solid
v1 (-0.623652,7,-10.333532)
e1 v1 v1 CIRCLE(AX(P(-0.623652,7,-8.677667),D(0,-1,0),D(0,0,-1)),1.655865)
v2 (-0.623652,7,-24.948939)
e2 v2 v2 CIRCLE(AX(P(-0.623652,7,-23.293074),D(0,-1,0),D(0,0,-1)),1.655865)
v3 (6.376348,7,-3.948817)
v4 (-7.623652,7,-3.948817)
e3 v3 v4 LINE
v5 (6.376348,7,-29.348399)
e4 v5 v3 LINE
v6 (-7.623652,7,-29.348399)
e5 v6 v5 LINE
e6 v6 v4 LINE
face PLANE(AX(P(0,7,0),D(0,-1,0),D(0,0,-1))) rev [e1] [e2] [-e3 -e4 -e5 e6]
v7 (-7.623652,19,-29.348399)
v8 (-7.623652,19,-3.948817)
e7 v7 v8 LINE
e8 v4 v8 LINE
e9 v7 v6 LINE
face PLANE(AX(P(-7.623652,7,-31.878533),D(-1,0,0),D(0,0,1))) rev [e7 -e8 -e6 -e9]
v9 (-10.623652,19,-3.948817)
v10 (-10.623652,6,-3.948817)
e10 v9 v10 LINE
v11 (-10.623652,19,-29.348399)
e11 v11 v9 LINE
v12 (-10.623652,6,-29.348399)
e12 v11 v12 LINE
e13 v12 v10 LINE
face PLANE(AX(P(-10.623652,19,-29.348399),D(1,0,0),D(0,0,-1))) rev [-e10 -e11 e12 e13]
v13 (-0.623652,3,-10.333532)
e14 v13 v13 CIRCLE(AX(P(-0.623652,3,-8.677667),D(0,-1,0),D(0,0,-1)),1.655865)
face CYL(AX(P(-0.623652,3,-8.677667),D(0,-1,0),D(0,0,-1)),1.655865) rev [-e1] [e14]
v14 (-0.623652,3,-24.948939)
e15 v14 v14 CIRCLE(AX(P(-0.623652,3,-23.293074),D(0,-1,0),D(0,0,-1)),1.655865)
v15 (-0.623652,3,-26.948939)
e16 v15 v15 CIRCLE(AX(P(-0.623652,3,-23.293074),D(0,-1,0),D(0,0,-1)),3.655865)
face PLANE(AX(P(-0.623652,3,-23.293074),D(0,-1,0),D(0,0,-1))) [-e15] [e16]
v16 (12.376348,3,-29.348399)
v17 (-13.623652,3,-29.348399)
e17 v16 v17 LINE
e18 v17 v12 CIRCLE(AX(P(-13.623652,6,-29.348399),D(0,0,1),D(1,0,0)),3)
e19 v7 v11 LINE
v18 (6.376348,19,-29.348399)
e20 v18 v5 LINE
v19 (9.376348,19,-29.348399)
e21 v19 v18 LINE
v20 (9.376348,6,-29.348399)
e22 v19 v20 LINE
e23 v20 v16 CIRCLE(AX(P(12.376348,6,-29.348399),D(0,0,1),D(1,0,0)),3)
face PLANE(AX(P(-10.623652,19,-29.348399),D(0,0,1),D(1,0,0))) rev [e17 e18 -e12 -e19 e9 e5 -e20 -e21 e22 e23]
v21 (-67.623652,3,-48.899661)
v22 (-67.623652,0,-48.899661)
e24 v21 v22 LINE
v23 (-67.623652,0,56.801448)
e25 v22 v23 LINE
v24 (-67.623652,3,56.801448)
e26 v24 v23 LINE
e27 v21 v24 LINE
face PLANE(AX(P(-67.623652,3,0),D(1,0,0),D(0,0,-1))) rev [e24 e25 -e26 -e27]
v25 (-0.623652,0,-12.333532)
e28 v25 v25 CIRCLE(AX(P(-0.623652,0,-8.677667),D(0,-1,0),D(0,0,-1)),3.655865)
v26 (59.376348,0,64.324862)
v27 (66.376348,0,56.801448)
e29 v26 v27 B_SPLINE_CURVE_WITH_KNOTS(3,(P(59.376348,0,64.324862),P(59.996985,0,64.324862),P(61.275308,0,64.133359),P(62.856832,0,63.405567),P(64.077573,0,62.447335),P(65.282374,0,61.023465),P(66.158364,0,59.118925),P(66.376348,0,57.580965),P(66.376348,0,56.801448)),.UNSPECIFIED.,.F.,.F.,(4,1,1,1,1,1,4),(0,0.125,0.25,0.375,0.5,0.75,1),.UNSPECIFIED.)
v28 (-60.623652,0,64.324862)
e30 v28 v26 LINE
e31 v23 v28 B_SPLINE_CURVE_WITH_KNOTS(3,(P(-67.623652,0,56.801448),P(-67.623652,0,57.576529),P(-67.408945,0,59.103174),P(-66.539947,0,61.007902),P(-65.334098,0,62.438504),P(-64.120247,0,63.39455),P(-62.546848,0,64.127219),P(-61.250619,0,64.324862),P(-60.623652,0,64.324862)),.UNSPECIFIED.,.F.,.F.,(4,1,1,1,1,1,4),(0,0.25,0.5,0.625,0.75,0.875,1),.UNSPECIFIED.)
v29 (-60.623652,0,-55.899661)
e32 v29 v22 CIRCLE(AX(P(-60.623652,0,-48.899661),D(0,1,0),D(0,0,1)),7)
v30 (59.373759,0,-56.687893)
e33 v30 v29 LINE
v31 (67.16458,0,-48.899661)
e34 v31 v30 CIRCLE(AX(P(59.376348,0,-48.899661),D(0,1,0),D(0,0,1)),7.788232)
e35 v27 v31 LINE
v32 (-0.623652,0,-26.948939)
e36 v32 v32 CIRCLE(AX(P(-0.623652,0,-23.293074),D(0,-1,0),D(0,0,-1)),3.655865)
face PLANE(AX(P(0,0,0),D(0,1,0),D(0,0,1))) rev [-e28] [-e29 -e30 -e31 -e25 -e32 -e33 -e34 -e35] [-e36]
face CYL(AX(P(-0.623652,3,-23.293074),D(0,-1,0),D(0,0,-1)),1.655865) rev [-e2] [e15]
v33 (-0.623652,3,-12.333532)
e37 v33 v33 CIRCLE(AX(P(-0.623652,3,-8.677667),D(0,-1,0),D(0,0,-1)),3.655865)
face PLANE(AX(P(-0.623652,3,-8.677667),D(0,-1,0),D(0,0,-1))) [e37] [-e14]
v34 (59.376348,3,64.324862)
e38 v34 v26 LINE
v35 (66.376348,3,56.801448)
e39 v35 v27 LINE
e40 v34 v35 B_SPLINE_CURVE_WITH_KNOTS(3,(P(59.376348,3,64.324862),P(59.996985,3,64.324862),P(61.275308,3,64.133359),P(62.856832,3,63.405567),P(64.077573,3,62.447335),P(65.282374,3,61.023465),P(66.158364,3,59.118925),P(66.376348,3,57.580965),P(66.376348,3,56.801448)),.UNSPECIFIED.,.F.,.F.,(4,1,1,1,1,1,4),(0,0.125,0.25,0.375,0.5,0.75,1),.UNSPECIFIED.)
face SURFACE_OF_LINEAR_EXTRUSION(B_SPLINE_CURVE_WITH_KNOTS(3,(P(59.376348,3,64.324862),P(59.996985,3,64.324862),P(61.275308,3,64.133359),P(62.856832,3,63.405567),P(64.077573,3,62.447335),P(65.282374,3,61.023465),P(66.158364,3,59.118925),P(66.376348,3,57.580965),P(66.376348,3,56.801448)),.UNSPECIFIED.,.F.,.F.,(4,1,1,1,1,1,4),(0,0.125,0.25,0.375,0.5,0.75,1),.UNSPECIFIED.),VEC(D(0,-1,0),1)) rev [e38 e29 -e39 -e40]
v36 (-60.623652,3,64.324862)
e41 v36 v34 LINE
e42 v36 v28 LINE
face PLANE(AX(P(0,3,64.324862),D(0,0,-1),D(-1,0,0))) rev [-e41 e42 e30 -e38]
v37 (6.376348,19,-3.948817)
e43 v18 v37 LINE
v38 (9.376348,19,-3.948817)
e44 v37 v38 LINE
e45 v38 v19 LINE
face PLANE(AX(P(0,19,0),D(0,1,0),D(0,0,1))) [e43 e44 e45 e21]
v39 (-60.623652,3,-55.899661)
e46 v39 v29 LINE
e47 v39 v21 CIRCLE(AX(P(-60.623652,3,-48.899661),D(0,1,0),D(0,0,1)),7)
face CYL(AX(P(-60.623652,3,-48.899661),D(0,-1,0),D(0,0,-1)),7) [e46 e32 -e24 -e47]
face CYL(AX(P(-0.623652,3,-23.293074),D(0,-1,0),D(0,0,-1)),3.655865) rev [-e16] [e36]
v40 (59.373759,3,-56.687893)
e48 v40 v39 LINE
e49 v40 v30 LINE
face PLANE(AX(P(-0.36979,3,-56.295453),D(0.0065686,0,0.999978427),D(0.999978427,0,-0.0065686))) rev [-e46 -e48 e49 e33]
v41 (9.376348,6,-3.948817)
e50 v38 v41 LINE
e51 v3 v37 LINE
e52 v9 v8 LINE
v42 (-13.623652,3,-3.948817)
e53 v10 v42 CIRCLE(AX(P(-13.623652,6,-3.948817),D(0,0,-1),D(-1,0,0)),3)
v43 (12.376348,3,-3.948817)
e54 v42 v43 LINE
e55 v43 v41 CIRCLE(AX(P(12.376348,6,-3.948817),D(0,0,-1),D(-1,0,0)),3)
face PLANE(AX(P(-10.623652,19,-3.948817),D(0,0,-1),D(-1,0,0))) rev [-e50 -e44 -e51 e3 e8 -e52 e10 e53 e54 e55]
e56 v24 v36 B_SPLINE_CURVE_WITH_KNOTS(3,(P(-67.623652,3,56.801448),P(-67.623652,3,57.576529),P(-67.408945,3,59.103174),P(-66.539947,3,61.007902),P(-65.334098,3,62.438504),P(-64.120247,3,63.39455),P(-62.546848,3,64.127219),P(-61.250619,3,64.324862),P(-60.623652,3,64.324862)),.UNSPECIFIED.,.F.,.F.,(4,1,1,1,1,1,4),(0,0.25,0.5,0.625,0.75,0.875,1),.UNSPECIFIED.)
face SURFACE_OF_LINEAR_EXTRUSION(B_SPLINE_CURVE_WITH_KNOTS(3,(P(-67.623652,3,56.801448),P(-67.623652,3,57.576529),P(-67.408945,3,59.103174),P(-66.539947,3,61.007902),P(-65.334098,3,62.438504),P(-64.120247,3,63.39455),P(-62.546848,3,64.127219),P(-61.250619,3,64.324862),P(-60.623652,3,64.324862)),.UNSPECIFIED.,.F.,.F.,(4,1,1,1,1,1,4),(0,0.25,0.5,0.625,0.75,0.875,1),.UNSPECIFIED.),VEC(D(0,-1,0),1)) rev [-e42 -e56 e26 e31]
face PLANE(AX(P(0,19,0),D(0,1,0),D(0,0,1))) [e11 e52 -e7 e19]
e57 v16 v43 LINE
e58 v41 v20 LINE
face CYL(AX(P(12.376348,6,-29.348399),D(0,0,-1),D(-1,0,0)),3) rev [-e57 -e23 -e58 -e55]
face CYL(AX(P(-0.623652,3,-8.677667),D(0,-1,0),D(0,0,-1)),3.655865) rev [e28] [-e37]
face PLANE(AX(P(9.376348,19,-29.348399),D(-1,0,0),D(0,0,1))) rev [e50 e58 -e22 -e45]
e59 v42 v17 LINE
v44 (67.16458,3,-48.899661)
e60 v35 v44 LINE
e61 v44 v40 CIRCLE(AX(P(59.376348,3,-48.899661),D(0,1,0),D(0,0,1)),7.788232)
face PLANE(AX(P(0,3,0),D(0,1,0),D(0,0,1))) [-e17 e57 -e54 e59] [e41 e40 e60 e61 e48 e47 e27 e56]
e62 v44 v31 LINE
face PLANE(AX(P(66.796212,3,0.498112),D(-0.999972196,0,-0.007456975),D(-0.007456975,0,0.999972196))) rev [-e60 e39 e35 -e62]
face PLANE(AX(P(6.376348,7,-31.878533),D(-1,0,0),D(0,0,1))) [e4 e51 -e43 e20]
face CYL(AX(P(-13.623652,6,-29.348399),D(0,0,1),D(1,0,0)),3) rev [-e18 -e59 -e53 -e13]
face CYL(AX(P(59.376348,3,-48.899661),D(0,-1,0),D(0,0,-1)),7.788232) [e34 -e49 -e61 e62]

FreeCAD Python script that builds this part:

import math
import FreeCAD as App
import Part
import Sketcher

V = App.Vector
Q = App.Units.Quantity


def edges_at(feature, points):
    """Names of the edges that pass closest to the given points."""
    edges = feature.Shape.Edges
    near = lambda p: min(range(len(edges)), key=lambda i: edges[i].distToShape(Part.Vertex(*p))[0])
    return sorted({f"Edge{near(p) + 1}" for p in points})


def add_polygon(sketch, points):
    """Adds a closed chain of lines whose ends are joined by coincident constraints."""
    first, n = sketch.GeometryCount, len(points)
    for a, b in zip(points, points[1:] + points[:1]):
        sketch.addGeometry(Part.LineSegment(App.Vector(*a, 0), App.Vector(*b, 0)), False)
    for i in range(n):
        sketch.addConstraint(Sketcher.Constraint("Coincident", first + i, 2, first + (i + 1) % n, 1))

doc = App.newDocument("Part")
params = doc.addObject("Spreadsheet::Sheet", "Params")
for row, (alias, value) in enumerate([
    ("sketch1_radius", "7 mm"),
    ("sketch1_length", "120 mm"),
    ("pad1_length", "3 mm"),
    ("sketch2_width", "20 mm"),
    ("pad2_length", "16 mm"),
    ("sketch3_width", "14 mm"),
    ("pocket1_length", "12 mm"),
    ("fillet_radius", "3 mm"),
    ("pocket2_length", "3 mm"),
], start=1):
    params.set(f"A{row}", alias)
    params.set(f"B{row}", "=" + value)
    params.setAlias(f"B{row}", alias)

body = doc.addObject("PartDesign::Body", "Body")

# Sketch on XZ plane
sketch1 = doc.addObject("Sketcher::SketchObject", "Sketch")
body.addObject(sketch1)
sketch1.AttachmentSupport = (doc.XZ_Plane, [""])
sketch1.MapMode = "FlatFace"
sketch1.addGeometry(Part.LineSegment(V(-67.623652, -48.899661, 0), V(-67.623652, 56.801448, 0)), False)
sketch1.addGeometry(Part.BSplineCurve([V(-67.623652, 56.801448, 0), V(-67.623652, 57.576529, 0), V(-67.408945, 59.103174, 0), V(-66.539947, 61.007902, 0), V(-65.334098, 62.438504, 0), V(-64.120247, 63.39455, 0), V(-62.546848, 64.127219, 0), V(-61.250619, 64.324862, 0), V(-60.623652, 64.324862, 0)], [4, 1, 1, 1, 1, 1, 4], [0, 0.25, 0.5, 0.625, 0.75, 0.875, 1], False, 3, [1, 1, 1, 1, 1, 1, 1, 1, 1], False), False)
sketch1.addGeometry(Part.LineSegment(V(-60.623652, 64.324862, 0), V(59.376348, 64.324862, 0)), False)
sketch1.addGeometry(Part.BSplineCurve([V(59.376348, 64.324862, 0), V(59.996985, 64.324862, 0), V(61.275308, 64.133359, 0), V(62.856832, 63.405567, 0), V(64.077573, 62.447335, 0), V(65.282374, 61.023465, 0), V(66.158364, 59.118925, 0), V(66.376348, 57.580965, 0), V(66.376348, 56.801448, 0)], [4, 1, 1, 1, 1, 1, 4], [0, 0.125, 0.25, 0.375, 0.5, 0.75, 1], False, 3, [1, 1, 1, 1, 1, 1, 1, 1, 1], False), False)
sketch1.addGeometry(Part.LineSegment(V(66.376348, 56.801448, 0), V(67.16458, -48.899661, 0)), False)
sketch1.addGeometry(Part.ArcOfCircle(Part.Circle(V(59.376348, -48.899661, 0), V(0, 0, 1), 7.788232), math.radians(-90.019045), math.radians(0)), False)
sketch1.addGeometry(Part.LineSegment(V(59.373759, -56.687893, 0), V(-60.623652, -55.899661, 0)), False)
sketch1.addGeometry(Part.ArcOfCircle(Part.Circle(V(-60.623652, -48.899661, 0), V(0, 0, 1), 7), math.radians(180), math.radians(270)), False)
sketch1.addGeometry(Part.Circle(V(-0.623652, -8.677667, 0), V(0, 0, 1), 1.655865), False)
sketch1.addGeometry(Part.Circle(V(-0.623652, -23.293074, 0), V(0, 0, 1), 1.655865), False)
sketch1.addConstraint(Sketcher.Constraint("Block", 1))
sketch1.addConstraint(Sketcher.Constraint("Block", 3))
sketch1.addConstraint(Sketcher.Constraint("Coincident", 0, 2, 1, 1))
sketch1.addConstraint(Sketcher.Constraint("Coincident", 1, 2, 2, 1))
sketch1.addConstraint(Sketcher.Constraint("Coincident", 2, 2, 3, 1))
sketch1.addConstraint(Sketcher.Constraint("Coincident", 3, 2, 4, 1))
sketch1.addConstraint(Sketcher.Constraint("Coincident", 4, 2, 5, 2))
sketch1.addConstraint(Sketcher.Constraint("Coincident", 5, 1, 6, 1))
sketch1.addConstraint(Sketcher.Constraint("Coincident", 6, 2, 7, 2))
sketch1.addConstraint(Sketcher.Constraint("Coincident", 7, 1, 0, 1))
sketch1.addConstraint(Sketcher.Constraint("Vertical", 0))
sketch1.addConstraint(Sketcher.Constraint("Radius", 7, Q("7 mm")))
sketch1.addConstraint(Sketcher.Constraint("Distance", 6, Q("120 mm")))
sketch1.addConstraint(Sketcher.Constraint("DistanceX", 7, 3, 5, 3, Q("120 mm")))
sketch1.addConstraint(Sketcher.Constraint("DistanceX", 7, 3, 8, 3, Q("60 mm")))
sketch1.addConstraint(Sketcher.Constraint("DistanceX", 7, 3, 9, 3, Q("60 mm")))
sketch1.addConstraint(Sketcher.Constraint("DistanceX", 6, 2, 9, 3, Q("60 mm")))
sketch1.addConstraint(Sketcher.Constraint("DistanceY", 6, 2, 7, 1, Q("7 mm")))
sketch1.addConstraint(Sketcher.Constraint("Diameter", 8, Q("3.311729 mm")))
sketch1.addConstraint(Sketcher.Constraint("Diameter", 9, Q("3.311729 mm")))
sketch1.addConstraint(Sketcher.Constraint("Radius", 5, Q("7.788232 mm")))
sketch1.addConstraint(Sketcher.Constraint("DistanceY", 0, 1, 0, 2, Q("105.701109 mm")))
sketch1.addConstraint(Sketcher.Constraint("DistanceY", 5, 3, -1, 1, Q("48.899661 mm")))
sketch1.addConstraint(Sketcher.Constraint("DistanceY", 4, 2, -1, 1, Q("48.899661 mm")))
sketch1.addConstraint(Sketcher.Constraint("DistanceY", 9, 3, 0, 2, Q("80.094522 mm")))
sketch1.addConstraint(Sketcher.Constraint("DistanceY", 8, 3, 2, 2, Q("73.002529 mm")))
sketch1.setExpression("Constraints[11]", "Params.sketch1_radius")
sketch1.setExpression("Constraints[12]", "Params.sketch1_length")
pad1 = doc.addObject("PartDesign::Pad", "Pad")
body.addObject(pad1)
pad1.Profile = sketch1
pad1.setExpression("Length", "Params.pad1_length")
pad1.Reversed = True

# Sketch on XZ plane
sketch2 = doc.addObject("Sketcher::SketchObject", "Sketch001")
body.addObject(sketch2)
sketch2.AttachmentSupport = (doc.XZ_Plane, [""])
sketch2.MapMode = "FlatFace"
sketch2.AttachmentOffset = App.Placement(V(0, 0, -3), App.Rotation())
add_polygon(sketch2, [(-10.6, -29.3), (-10.6, -3.9), (9.4, -3.9), (9.4, -29.3)])  # lines 0-3
sketch2.addGeometry(Part.Circle(V(-0.6, -8.7, 0), V(0, 0, 1), 1.7), False)  # 4
sketch2.addGeometry(Part.Circle(V(-0.6, -23.3, 0), V(0, 0, 1), 1.7), False)  # 5
sketch2.addConstraint(Sketcher.Constraint("Vertical", 0))
sketch2.addConstraint(Sketcher.Constraint("Horizontal", 1))
sketch2.addConstraint(Sketcher.Constraint("Vertical", 2))
sketch2.addConstraint(Sketcher.Constraint("Horizontal", 3))
sketch2.addConstraint(Sketcher.Constraint("Equal", 4, 5))
sketch2.addConstraint(Sketcher.Constraint("Vertical", 4, 3, 5, 3))
sketch2.addConstraint(Sketcher.Constraint("DistanceX", 1, 1, 1, 2, Q("20 mm")))
sketch2.addConstraint(Sketcher.Constraint("DistanceX", 0, 2, 4, 3, Q("10 mm")))
sketch2.addConstraint(Sketcher.Constraint("Diameter", 4, Q("3.311729 mm")))
sketch2.addConstraint(Sketcher.Constraint("DistanceY", 2, 2, -1, 1, Q("29.348399 mm")))
sketch2.addConstraint(Sketcher.Constraint("DistanceY", 0, 1, 0, 2, Q("25.399582 mm")))
sketch2.addConstraint(Sketcher.Constraint("DistanceX", 4, 3, -1, 1, Q("0.623652 mm")))
sketch2.addConstraint(Sketcher.Constraint("DistanceY", 4, 3, 0, 2, Q("4.728851 mm")))
sketch2.addConstraint(Sketcher.Constraint("DistanceY", 5, 3, -1, 1, Q("23.293074 mm")))
sketch2.setExpression("Constraints[10]", "Params.sketch2_width")
pad2 = doc.addObject("PartDesign::Pad", "Pad001")
body.addObject(pad2)
pad2.Profile = sketch2
pad2.setExpression("Length", "Params.pad2_length")
pad2.Reversed = True

# Sketch on XZ plane
sketch3 = doc.addObject("Sketcher::SketchObject", "Sketch002")
body.addObject(sketch3)
sketch3.AttachmentSupport = (doc.XZ_Plane, [""])
sketch3.MapMode = "FlatFace"
sketch3.AttachmentOffset = App.Placement(V(0, 0, -19), App.Rotation())
add_polygon(sketch3, [(-8, -32), (-8, -1), (6, -1), (6, -32)])  # lines 0-3
sketch3.addConstraint(Sketcher.Constraint("Vertical", 0))
sketch3.addConstraint(Sketcher.Constraint("Horizontal", 1))
sketch3.addConstraint(Sketcher.Constraint("Vertical", 2))
sketch3.addConstraint(Sketcher.Constraint("Horizontal", 3))
sketch3.addConstraint(Sketcher.Constraint("DistanceX", 1, 1, 1, 2, Q("14 mm")))
sketch3.addConstraint(Sketcher.Constraint("DistanceY", 0, 1, 0, 2, Q("30.433665 mm")))
sketch3.addConstraint(Sketcher.Constraint("DistanceX", 0, 2, -1, 1, Q("7.623652 mm")))
sketch3.addConstraint(Sketcher.Constraint("DistanceY", 0, 2, -1, 1, Q("1.444868 mm")))
sketch3.setExpression("Constraints[8]", "Params.sketch3_width")
pocket1 = doc.addObject("PartDesign::Pocket", "Pocket")
body.addObject(pocket1)
pocket1.Profile = sketch3
pocket1.setExpression("Length", "Params.pocket1_length")
pocket1.Reversed = True
doc.recompute()

fillet = doc.addObject("PartDesign::Fillet", "Fillet")
body.addObject(fillet)
fillet.Base = (pocket1, edges_at(pocket1, [(-10.624, 3, -16.649), (9.376, 3, -16.649)]))
fillet.setExpression("Radius", "Params.fillet_radius")

# Sketch on XZ plane
sketch4 = doc.addObject("Sketcher::SketchObject", "Sketch003")
body.addObject(sketch4)
sketch4.AttachmentSupport = (doc.XZ_Plane, [""])
sketch4.MapMode = "FlatFace"
sketch4.addGeometry(Part.Circle(V(-0.6, -8.7, 0), V(0, 0, 1), 3.7), False)
sketch4.addGeometry(Part.Circle(V(-0.6, -23.3, 0), V(0, 0, 1), 3.7), False)
sketch4.addConstraint(Sketcher.Constraint("Equal", 0, 1))
sketch4.addConstraint(Sketcher.Constraint("Vertical", 0, 3, 1, 3))
sketch4.addConstraint(Sketcher.Constraint("Diameter", 0, Q("7.311729 mm")))
sketch4.addConstraint(Sketcher.Constraint("DistanceX", 0, 3, -1, 1, Q("0.623652 mm")))
sketch4.addConstraint(Sketcher.Constraint("DistanceY", 0, 3, -1, 1, Q("8.677667 mm")))
sketch4.addConstraint(Sketcher.Constraint("DistanceY", 1, 3, -1, 1, Q("23.293074 mm")))
pocket2 = doc.addObject("PartDesign::Pocket", "Pocket001")
body.addObject(pocket2)
pocket2.Profile = sketch4
pocket2.setExpression("Length", "Params.pocket2_length")

doc.recompute()
